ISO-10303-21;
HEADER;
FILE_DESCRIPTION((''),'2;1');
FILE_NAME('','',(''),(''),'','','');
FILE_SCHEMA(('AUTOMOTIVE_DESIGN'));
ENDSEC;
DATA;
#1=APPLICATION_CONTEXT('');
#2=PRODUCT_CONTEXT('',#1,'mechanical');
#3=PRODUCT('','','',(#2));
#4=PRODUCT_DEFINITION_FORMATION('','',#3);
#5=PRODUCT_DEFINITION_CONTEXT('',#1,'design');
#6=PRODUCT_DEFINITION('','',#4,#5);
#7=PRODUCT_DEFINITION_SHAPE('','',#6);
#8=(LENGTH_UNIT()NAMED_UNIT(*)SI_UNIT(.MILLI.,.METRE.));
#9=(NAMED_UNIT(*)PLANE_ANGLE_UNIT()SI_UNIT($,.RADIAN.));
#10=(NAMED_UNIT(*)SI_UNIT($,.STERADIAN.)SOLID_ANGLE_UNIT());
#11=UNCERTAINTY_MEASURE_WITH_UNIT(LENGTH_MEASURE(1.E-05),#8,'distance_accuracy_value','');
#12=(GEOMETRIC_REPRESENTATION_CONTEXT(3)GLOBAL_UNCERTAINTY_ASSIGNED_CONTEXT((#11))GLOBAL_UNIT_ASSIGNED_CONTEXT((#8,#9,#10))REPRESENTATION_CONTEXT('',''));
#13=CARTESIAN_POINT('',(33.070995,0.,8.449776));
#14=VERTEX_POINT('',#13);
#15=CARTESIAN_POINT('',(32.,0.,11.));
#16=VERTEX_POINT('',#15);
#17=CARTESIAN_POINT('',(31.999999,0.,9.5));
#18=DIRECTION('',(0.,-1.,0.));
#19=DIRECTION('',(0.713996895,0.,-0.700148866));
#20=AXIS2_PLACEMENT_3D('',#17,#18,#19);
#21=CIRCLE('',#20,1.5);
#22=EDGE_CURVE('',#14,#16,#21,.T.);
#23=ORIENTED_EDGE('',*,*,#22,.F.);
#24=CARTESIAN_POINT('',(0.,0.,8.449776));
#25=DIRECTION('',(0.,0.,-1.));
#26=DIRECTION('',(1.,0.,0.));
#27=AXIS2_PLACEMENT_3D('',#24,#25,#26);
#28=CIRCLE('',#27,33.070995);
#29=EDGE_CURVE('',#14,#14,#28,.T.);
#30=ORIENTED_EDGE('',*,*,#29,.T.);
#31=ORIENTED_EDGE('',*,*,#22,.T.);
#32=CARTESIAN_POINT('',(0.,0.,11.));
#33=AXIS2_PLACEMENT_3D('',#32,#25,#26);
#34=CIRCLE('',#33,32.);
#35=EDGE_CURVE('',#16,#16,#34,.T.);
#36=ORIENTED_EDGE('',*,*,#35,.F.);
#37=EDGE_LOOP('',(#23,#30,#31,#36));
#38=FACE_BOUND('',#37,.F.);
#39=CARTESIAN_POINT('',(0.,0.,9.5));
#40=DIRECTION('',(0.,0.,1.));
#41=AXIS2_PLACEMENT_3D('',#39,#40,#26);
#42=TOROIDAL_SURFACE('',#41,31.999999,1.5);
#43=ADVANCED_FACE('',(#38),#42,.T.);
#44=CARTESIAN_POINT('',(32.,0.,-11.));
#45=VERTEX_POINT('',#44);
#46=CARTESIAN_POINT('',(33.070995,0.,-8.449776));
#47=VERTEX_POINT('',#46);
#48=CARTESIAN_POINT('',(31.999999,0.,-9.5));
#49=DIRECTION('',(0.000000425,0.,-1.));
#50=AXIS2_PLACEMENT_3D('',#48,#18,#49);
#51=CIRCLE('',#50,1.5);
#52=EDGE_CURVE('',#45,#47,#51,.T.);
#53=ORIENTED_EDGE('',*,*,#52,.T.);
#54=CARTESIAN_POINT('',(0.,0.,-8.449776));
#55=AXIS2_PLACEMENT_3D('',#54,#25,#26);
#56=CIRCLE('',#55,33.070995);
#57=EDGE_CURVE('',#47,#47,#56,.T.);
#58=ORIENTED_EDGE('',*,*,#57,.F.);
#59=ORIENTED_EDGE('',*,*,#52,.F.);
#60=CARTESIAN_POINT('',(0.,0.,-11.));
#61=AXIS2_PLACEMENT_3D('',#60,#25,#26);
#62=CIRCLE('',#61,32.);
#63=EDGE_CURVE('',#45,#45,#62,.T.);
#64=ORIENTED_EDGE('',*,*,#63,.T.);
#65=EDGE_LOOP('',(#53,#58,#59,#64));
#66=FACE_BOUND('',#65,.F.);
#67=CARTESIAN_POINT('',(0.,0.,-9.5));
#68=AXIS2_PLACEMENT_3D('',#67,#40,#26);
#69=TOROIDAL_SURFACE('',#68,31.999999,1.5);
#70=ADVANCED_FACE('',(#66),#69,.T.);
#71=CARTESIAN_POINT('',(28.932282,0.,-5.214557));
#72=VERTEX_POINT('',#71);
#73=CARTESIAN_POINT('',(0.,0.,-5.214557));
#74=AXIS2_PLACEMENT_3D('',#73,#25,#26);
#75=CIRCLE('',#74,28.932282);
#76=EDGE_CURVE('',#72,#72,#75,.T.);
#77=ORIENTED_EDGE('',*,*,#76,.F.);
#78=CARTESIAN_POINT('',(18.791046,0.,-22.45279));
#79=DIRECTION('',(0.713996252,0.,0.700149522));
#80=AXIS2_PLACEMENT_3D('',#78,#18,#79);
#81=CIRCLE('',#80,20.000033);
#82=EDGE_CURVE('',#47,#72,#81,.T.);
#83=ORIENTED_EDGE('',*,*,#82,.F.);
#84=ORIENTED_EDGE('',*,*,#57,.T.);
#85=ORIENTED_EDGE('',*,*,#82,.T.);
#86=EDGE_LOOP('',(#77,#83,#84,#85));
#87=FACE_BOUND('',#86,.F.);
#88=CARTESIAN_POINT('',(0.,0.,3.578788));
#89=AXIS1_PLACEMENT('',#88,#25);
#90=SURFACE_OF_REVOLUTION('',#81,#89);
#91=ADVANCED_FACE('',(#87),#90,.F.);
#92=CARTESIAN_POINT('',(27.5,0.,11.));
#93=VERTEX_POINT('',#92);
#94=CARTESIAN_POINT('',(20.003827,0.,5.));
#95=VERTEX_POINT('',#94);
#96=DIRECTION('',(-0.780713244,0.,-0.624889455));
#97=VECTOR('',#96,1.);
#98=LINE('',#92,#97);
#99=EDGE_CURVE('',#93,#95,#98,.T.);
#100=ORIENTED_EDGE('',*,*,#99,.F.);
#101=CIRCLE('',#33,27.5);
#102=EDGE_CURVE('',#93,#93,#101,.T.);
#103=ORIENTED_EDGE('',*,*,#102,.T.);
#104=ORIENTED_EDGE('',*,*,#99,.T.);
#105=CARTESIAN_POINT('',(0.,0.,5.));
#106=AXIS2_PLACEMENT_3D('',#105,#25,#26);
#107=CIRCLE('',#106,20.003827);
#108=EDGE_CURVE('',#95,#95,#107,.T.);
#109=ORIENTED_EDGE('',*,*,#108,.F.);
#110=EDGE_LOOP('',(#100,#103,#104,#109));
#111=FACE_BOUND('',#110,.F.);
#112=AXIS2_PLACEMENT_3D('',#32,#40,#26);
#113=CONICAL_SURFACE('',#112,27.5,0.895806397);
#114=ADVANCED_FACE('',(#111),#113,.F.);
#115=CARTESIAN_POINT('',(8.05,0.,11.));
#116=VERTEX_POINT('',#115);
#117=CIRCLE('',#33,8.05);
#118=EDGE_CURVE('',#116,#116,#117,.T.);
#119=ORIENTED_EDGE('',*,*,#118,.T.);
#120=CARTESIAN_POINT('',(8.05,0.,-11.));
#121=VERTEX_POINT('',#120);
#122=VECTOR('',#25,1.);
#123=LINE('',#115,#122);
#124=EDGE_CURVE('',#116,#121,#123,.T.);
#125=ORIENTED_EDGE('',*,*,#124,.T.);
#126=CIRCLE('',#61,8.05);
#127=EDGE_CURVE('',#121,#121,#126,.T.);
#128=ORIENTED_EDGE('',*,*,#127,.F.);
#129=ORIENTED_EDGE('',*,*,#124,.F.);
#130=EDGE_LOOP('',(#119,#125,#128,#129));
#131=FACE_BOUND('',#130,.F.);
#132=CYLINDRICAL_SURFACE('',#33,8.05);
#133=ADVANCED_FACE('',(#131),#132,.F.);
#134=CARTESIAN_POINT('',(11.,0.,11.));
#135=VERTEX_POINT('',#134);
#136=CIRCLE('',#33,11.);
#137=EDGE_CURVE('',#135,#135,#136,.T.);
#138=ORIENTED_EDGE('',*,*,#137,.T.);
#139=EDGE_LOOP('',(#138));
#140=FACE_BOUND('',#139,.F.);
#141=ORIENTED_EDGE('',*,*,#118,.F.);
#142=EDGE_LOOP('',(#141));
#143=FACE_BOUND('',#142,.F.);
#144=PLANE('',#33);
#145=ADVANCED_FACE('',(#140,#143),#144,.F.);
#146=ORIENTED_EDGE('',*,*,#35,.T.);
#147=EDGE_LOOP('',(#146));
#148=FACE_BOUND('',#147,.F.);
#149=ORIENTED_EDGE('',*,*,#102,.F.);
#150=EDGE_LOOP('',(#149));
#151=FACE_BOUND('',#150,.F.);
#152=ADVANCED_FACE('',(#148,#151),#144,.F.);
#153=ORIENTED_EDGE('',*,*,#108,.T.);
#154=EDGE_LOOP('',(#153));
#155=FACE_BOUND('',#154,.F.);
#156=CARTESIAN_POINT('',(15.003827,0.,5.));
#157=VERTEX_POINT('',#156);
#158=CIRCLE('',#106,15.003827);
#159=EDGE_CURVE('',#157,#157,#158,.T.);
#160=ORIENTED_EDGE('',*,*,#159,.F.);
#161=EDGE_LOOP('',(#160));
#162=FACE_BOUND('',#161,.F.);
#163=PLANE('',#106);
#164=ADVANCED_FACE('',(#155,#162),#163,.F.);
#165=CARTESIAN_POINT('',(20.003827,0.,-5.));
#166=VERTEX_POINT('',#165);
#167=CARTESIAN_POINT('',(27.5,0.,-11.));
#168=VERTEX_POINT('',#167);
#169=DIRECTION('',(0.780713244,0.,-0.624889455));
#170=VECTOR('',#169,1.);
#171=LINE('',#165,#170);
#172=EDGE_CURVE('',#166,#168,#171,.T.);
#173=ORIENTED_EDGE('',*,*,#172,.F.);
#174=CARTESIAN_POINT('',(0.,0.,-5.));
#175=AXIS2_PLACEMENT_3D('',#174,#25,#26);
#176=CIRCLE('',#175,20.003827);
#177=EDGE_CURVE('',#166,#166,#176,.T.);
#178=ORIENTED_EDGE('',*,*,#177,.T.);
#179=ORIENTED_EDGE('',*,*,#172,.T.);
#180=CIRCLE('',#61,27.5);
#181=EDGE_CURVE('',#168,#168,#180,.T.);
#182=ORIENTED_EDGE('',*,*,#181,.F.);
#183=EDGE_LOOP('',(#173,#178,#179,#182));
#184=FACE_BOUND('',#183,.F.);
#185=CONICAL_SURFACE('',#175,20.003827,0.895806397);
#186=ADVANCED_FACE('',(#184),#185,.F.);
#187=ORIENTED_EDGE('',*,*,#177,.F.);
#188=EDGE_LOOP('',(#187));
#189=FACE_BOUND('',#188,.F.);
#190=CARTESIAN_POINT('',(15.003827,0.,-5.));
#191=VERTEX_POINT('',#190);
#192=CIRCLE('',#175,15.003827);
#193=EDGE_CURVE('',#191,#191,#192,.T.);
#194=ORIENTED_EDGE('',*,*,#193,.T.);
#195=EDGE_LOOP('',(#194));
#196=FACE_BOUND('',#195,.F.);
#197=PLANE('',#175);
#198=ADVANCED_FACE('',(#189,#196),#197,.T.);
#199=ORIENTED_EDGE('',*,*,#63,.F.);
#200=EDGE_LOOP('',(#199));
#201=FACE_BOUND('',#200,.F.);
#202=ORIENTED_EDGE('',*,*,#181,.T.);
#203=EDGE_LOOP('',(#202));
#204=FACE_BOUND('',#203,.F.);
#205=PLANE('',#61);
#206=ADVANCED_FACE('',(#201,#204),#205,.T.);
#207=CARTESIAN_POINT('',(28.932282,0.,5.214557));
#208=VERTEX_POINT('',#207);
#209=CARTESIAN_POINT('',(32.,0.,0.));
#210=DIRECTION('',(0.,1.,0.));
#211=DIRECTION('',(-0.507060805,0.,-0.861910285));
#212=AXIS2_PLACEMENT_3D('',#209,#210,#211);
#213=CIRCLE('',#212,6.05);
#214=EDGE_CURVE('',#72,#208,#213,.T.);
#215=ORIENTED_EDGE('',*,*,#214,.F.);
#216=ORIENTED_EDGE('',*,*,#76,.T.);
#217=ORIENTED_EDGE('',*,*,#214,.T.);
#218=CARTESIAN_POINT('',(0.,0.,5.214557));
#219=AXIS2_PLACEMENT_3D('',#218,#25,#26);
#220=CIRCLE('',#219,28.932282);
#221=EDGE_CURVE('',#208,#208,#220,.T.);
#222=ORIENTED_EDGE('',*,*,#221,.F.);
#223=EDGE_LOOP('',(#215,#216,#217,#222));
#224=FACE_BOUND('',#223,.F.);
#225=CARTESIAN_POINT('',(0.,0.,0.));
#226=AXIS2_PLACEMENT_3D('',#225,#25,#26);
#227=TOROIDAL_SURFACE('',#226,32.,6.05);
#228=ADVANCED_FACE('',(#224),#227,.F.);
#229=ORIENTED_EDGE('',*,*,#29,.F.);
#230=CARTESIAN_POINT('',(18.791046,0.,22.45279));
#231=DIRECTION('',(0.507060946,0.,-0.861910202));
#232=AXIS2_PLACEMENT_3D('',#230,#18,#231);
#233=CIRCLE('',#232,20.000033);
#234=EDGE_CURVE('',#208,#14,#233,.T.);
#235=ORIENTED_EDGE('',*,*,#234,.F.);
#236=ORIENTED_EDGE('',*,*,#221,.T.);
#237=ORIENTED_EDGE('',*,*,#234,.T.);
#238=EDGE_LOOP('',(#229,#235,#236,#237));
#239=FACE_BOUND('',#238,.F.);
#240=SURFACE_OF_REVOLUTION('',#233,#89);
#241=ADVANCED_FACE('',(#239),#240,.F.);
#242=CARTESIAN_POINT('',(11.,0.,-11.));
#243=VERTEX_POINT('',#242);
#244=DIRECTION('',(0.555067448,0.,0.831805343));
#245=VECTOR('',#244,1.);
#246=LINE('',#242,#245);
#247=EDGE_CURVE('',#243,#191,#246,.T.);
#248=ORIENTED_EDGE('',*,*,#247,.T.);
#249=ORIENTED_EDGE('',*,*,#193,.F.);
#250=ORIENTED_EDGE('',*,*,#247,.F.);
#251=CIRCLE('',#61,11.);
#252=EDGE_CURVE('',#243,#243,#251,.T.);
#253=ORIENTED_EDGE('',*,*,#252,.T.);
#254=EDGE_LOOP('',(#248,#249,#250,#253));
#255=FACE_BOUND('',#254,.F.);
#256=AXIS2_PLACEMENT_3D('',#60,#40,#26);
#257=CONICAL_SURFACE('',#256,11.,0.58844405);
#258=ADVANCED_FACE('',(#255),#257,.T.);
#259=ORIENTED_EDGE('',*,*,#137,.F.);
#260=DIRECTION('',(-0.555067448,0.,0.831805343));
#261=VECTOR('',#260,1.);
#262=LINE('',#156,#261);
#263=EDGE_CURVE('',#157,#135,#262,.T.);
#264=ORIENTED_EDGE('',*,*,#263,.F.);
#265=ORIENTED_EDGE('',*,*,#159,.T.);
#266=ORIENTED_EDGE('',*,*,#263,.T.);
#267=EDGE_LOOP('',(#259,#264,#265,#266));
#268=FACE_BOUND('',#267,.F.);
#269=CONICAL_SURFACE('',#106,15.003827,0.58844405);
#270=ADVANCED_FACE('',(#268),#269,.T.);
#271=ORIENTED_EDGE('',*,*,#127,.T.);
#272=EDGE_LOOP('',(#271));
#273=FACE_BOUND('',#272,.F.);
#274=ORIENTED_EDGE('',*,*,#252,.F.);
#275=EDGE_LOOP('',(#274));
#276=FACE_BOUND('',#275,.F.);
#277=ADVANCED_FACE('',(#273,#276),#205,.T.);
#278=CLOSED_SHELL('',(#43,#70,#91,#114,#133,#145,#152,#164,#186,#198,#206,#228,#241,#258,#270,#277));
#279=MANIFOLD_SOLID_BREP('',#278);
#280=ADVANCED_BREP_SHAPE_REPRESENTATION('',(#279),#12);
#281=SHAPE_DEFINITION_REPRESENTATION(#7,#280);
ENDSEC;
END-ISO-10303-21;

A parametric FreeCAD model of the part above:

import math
import FreeCAD as App
import Part
import Sketcher
from FreeCAD import Vector
Q = App.Units.Quantity

doc = App.newDocument("Part")
body = doc.addObject("PartDesign::Body", "Body")

sketch1 = body.newObject("Sketcher::SketchObject", "Sketch")
sketch1.AttachmentSupport = (doc.getObject("XZ_Plane"), [""])
sketch1.MapMode = "FlatFace"
sketch1.addGeometry([
    Part.ArcOfCircle(Part.Circle(Vector(18.8, 22.5, 0), Vector(0, 0, 1), 20), math.radians(-59.53), math.radians(-44.44)),
    Part.ArcOfCircle(Part.Circle(Vector(32, 9.5, 0), Vector(0, 0, 1), 1.5), math.radians(-44), math.radians(90)),
    Part.LineSegment(Vector(32, 11, 0), Vector(27.5, 11, 0)),
    Part.LineSegment(Vector(27.5, 11, 0), Vector(20, 5, 0)),
    Part.LineSegment(Vector(20, 5, 0), Vector(15, 5, 0)),
    Part.LineSegment(Vector(15, 5, 0), Vector(11, 11, 0)),
    Part.LineSegment(Vector(11, 11, 0), Vector(8.1, 11, 0)),
    Part.LineSegment(Vector(8.1, 11, 0), Vector(8.1, -11, 0)),
    Part.LineSegment(Vector(8.1, -11, 0), Vector(11, -11, 0)),
    Part.LineSegment(Vector(11, -11, 0), Vector(15, -5, 0)),
    Part.LineSegment(Vector(15, -5, 0), Vector(20, -5, 0)),
    Part.LineSegment(Vector(20, -5, 0), Vector(27.5, -11, 0)),
    Part.LineSegment(Vector(27.5, -11, 0), Vector(32, -11, 0)),
    Part.ArcOfCircle(Part.Circle(Vector(32, -9.5, 0), Vector(0, 0, 1), 1.5), math.radians(-90), math.radians(44)),
    Part.ArcOfCircle(Part.Circle(Vector(18.8, -22.5, 0), Vector(0, 0, 1), 20), math.radians(44.44), math.radians(59.53)),
    Part.ArcOfCircle(Part.Circle(Vector(32, 0, 0), Vector(0, 0, 1), 6), math.radians(120), math.radians(240)),
], False)
sketch1.addConstraint([
    Sketcher.Constraint("Tangent", 0, 2, 1, 1),
    Sketcher.Constraint("Tangent", 1, 2, 2, 1),
    Sketcher.Constraint("Coincident", 2, 2, 3, 1),
    Sketcher.Constraint("Coincident", 3, 2, 4, 1),
    Sketcher.Constraint("Coincident", 4, 2, 5, 1),
    Sketcher.Constraint("Coincident", 5, 2, 6, 1),
    Sketcher.Constraint("Coincident", 6, 2, 7, 1),
    Sketcher.Constraint("Coincident", 7, 2, 8, 1),
    Sketcher.Constraint("Coincident", 8, 2, 9, 1),
    Sketcher.Constraint("Coincident", 9, 2, 10, 1),
    Sketcher.Constraint("Coincident", 10, 2, 11, 1),
    Sketcher.Constraint("Coincident", 11, 2, 12, 1),
    Sketcher.Constraint("Tangent", 12, 2, 13, 1),
    Sketcher.Constraint("Tangent", 13, 2, 14, 1),
    Sketcher.Constraint("Tangent", 14, 2, 15, 2),
    Sketcher.Constraint("Tangent", 15, 1, 0, 1),
    Sketcher.Constraint("Horizontal", 2),
    Sketcher.Constraint("Horizontal", 4),
    Sketcher.Constraint("Horizontal", 6),
    Sketcher.Constraint("Vertical", 7),
    Sketcher.Constraint("Horizontal", 8),
    Sketcher.Constraint("Horizontal", 10),
    Sketcher.Constraint("Horizontal", 12),
    Sketcher.Constraint("Equal", 1, 13),
    Sketcher.Constraint("Equal", 0, 14),
    Sketcher.Constraint("Symmetric", 1, 3, 13, 3, -1),
    Sketcher.Constraint("Symmetric", 5, 2, 8, 2, -1),
    Sketcher.Constraint("Symmetric", 4, 2, 9, 2, -1),
    Sketcher.Constraint("PointOnObject", 15, 3, -1),
    Sketcher.Constraint("Horizontal", 2, 2, 5, 2),
    Sketcher.Constraint("Vertical", 13, 3, 15, 3),
    Sketcher.Constraint("Vertical", 3, 2, 10, 2),
    Sketcher.Constraint("Vertical", 2, 2, 11, 2),
    Sketcher.Constraint("Radius", 1, Q("1.5 mm")),
    Sketcher.Constraint("DistanceX", 4, 2, 4, 1, Q("5 mm")),
    Sketcher.Constraint("DistanceY", 7, 2, 7, 1, Q("22 mm")),
    Sketcher.Constraint("Radius", 15, Q("6.05 mm")),
    Sketcher.Constraint("DistanceX", 2, 2, 2, 1, Q("4.5 mm")),
    Sketcher.Constraint("DistanceX", -1, 1, 1, 3, Q("31.999999 mm")),
    Sketcher.Constraint("DistanceY", -1, 1, 3, 2, Q("5 mm")),
    Sketcher.Constraint("DistanceX", -1, 1, 5, 2, Q("11 mm")),
    Sketcher.Constraint("DistanceX", 6, 2, 6, 1, Q("2.95 mm")),
    Sketcher.Constraint("Radius", 0, Q("20.000033 mm")),
    Sketcher.Constraint("Distance", 3, Q("9.601698 mm")),
])
revolution = body.newObject("PartDesign::Revolution", "Revolution")
revolution.Profile = sketch1
revolution.ReferenceAxis = (sketch1, ["V_Axis"])
revolution.Angle = 360

doc.recompute()
